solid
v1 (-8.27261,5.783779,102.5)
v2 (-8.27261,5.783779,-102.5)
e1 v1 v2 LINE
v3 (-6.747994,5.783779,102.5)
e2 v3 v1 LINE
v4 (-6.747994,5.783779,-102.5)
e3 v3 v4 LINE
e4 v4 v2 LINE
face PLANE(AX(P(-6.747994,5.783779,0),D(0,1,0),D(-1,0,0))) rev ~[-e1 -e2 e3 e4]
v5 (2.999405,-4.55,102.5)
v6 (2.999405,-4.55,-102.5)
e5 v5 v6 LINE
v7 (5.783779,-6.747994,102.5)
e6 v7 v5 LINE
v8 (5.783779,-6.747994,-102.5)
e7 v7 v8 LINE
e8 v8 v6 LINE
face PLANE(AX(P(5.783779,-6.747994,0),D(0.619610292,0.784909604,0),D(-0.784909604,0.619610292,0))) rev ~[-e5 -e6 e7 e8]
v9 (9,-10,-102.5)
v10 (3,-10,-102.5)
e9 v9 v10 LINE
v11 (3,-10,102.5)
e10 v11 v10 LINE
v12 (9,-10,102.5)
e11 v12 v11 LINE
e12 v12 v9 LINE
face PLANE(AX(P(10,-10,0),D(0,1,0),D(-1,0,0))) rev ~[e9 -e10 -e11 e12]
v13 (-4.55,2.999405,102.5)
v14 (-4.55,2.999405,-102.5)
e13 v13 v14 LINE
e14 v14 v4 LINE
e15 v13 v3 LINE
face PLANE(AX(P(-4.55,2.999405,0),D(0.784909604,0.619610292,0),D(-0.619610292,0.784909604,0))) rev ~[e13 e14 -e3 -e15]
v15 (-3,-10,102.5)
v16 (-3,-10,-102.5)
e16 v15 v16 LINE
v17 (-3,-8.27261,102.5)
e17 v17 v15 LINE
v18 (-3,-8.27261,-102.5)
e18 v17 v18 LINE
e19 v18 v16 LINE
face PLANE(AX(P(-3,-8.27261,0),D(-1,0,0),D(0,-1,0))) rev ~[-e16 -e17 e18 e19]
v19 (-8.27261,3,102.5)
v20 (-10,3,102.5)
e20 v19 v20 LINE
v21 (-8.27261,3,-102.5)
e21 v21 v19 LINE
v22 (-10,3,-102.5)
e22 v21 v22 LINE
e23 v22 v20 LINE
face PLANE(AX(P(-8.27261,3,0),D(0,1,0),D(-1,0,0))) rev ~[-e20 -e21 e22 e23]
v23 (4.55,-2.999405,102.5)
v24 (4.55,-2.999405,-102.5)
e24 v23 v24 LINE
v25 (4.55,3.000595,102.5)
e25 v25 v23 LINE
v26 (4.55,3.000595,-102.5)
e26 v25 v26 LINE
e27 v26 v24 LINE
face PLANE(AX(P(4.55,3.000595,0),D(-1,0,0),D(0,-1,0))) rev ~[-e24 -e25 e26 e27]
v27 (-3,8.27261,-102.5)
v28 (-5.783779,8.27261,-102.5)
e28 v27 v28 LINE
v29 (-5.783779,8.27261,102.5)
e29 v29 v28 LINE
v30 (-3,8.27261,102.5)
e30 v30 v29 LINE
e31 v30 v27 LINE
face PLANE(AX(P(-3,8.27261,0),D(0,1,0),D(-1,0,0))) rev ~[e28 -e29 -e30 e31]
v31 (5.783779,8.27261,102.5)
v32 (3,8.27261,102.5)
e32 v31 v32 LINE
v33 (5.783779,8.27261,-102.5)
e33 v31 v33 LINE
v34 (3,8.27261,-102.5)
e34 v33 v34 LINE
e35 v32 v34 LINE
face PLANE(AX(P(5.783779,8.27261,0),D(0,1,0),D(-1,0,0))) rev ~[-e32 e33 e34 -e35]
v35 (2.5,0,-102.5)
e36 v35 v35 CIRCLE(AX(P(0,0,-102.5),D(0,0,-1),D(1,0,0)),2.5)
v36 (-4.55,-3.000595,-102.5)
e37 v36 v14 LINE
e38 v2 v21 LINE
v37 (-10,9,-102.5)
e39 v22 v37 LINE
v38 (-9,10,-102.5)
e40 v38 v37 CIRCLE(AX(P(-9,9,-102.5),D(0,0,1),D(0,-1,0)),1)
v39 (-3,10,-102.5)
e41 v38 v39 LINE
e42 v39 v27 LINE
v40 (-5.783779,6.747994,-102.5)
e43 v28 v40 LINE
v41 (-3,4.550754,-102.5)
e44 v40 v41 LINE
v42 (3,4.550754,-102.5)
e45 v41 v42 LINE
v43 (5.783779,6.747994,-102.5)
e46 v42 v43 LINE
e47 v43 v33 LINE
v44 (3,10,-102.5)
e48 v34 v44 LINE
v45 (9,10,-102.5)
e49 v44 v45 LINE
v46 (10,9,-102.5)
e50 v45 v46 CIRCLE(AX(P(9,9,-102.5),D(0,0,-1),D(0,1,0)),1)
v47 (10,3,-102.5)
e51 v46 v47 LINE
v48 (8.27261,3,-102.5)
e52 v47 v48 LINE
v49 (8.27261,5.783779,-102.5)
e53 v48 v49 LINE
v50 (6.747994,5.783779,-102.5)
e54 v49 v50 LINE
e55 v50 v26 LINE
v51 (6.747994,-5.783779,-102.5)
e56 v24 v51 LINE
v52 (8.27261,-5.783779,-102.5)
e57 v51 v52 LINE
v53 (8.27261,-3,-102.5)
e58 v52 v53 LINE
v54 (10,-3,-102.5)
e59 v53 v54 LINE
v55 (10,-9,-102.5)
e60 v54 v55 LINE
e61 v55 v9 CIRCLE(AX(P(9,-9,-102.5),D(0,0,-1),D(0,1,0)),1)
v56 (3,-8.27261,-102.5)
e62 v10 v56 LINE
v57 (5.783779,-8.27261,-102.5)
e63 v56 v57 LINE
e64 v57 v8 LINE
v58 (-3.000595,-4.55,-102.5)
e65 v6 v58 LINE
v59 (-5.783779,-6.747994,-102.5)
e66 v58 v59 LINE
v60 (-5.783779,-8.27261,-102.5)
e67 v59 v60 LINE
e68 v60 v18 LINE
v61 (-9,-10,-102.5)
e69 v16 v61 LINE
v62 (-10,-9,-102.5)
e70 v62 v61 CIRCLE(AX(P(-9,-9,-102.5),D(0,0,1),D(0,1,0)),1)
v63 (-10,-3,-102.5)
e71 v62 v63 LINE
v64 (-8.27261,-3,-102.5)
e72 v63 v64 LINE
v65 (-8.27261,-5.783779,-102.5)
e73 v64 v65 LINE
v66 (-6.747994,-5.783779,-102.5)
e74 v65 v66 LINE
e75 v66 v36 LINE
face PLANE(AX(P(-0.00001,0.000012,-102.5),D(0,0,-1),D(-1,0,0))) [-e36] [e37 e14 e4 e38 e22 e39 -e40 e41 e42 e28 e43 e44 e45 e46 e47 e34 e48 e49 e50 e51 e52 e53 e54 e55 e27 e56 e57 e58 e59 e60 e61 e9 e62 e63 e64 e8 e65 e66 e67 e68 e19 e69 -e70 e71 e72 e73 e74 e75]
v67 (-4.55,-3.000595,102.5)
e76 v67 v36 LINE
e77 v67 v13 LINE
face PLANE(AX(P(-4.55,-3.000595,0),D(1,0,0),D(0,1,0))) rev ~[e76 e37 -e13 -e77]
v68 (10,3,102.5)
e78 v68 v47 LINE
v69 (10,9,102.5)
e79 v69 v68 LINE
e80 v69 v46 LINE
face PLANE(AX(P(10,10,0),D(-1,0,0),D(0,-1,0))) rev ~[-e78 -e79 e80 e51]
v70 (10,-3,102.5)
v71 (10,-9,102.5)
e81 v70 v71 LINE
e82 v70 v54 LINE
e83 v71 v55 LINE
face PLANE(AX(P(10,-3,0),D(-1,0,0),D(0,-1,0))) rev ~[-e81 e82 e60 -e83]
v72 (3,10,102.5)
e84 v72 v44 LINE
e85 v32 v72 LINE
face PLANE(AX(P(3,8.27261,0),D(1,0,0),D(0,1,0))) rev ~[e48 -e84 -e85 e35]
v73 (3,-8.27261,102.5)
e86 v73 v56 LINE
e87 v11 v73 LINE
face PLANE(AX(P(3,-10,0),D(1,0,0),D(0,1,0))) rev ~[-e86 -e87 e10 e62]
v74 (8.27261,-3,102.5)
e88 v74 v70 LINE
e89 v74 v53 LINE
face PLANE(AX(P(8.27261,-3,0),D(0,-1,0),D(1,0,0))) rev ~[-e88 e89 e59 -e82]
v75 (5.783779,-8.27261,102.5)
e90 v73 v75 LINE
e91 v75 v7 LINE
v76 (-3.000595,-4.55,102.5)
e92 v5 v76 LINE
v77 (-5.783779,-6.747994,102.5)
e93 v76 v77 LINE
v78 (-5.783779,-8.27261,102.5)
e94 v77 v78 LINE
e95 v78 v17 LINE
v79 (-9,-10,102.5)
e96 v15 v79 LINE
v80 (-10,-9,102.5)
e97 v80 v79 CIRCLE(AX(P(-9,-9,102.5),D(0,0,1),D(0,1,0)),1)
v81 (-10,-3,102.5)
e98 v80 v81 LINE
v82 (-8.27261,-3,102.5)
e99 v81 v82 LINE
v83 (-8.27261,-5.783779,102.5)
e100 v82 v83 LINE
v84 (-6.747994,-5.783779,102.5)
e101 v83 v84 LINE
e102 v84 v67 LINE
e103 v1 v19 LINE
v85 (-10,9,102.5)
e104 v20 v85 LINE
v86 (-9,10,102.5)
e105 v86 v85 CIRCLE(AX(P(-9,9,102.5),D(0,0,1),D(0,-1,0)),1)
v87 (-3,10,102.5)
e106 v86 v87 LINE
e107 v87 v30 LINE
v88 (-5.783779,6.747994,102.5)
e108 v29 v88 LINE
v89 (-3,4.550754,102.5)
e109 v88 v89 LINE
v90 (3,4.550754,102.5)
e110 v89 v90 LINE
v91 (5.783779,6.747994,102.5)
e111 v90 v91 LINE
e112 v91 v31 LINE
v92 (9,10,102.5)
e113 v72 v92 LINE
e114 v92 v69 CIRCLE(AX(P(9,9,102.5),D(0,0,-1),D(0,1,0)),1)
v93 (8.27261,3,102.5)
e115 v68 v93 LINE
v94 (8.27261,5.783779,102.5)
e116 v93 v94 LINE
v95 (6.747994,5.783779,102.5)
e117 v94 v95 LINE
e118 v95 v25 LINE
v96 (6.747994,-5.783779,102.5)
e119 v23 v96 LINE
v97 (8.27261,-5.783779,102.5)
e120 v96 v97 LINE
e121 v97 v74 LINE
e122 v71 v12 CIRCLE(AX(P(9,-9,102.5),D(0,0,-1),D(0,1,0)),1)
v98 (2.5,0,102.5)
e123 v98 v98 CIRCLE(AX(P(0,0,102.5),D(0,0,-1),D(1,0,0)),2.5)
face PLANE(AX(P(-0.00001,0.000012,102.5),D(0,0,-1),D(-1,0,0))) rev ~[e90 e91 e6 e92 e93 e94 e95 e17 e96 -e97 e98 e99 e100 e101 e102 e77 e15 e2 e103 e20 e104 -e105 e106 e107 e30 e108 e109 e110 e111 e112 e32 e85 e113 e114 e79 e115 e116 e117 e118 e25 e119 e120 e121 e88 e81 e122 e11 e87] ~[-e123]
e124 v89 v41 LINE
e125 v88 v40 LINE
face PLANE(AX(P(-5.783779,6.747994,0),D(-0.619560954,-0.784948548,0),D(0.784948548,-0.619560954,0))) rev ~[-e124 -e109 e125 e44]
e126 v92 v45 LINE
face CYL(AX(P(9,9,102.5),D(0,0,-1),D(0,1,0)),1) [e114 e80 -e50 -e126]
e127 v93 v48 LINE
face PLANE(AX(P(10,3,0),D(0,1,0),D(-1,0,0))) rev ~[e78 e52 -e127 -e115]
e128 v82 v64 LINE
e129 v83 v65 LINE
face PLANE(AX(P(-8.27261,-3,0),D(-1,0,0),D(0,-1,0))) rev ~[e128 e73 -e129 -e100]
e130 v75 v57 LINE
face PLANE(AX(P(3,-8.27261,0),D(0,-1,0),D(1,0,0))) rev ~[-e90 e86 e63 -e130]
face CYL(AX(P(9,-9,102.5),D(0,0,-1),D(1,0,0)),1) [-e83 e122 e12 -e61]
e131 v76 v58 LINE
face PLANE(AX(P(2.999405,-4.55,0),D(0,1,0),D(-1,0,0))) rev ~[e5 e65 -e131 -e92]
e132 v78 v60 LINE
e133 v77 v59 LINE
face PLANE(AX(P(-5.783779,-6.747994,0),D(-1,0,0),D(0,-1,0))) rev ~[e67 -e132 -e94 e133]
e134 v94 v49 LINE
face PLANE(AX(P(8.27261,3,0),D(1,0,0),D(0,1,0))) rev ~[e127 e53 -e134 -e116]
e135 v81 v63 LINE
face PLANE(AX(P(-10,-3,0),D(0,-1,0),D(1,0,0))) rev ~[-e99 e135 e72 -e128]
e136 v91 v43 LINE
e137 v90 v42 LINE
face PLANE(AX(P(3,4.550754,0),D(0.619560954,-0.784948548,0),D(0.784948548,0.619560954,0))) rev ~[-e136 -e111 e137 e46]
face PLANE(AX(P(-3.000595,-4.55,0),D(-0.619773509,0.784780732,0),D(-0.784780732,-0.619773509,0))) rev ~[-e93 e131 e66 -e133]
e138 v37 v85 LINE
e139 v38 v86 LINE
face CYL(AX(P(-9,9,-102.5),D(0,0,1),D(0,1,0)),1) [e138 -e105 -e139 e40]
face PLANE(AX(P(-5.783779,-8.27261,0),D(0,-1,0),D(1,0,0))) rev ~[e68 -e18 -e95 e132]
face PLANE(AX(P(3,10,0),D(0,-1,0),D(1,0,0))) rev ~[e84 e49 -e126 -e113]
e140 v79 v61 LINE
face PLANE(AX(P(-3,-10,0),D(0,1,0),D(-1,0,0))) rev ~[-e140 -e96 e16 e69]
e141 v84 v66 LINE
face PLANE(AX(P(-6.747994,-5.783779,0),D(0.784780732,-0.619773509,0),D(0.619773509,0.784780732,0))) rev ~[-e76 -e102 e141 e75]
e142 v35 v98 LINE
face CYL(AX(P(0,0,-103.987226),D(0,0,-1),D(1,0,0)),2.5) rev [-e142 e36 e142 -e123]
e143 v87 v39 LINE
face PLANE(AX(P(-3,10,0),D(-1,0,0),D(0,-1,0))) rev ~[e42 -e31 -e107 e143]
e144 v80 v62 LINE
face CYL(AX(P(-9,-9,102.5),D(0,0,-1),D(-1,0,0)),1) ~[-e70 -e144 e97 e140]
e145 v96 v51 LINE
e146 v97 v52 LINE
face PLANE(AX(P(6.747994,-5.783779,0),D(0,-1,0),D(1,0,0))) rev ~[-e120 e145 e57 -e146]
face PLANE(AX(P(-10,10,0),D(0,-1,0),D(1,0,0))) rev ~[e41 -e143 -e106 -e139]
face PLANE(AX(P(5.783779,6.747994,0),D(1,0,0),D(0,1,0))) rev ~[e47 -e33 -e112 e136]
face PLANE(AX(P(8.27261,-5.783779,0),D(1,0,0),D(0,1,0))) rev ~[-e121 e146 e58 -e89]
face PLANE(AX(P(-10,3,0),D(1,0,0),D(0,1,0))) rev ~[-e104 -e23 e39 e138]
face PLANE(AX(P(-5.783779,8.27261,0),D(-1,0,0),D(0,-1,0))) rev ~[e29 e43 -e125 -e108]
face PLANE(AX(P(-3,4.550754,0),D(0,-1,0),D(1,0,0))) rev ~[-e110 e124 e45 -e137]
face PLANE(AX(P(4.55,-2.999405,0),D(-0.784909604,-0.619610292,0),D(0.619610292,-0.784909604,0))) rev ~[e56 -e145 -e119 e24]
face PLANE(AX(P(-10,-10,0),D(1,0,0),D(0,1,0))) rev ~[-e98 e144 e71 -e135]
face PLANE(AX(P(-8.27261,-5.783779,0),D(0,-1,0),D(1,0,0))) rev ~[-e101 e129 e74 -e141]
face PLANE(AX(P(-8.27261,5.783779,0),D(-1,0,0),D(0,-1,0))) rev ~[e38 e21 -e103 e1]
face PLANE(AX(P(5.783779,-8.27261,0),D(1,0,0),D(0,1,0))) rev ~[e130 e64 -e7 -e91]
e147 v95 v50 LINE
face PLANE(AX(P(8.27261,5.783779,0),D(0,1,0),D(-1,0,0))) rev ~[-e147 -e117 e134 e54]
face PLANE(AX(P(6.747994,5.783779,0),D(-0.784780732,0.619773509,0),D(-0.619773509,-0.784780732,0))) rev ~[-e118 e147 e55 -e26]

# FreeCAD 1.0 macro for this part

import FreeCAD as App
import Part
import Sketcher

V = App.Vector


def edges_at(feature, points):
    """Names of the edges that pass closest to the given points."""
    edges = feature.Shape.Edges
    near = lambda p: min(range(len(edges)), key=lambda i: edges[i].distToShape(Part.Vertex(*p))[0])
    return sorted({f"Edge{near(p) + 1}" for p in points})

doc = App.newDocument("Part")
body = doc.addObject("PartDesign::Body", "Body")

# Sketch on XY plane
sketch1 = body.newObject("Sketcher::SketchObject", "Sketch")
sketch1.AttachmentSupport = (doc.getObject("XY_Plane"), [""])
sketch1.MapMode = "FlatFace"
sketch1.addGeometry([
    Part.LineSegment(V(-3, 10, 0), V(-10, 10, 0)),  # 0
    Part.LineSegment(V(-10, 10, 0), V(-10, 3, 0)),  # 1
    Part.LineSegment(V(-10, 3, 0), V(-8.3, 3, 0)),  # 2
    Part.LineSegment(V(-8.3, 3, 0), V(-8.3, 5.8, 0)),  # 3
    Part.LineSegment(V(-8.3, 5.8, 0), V(-6.7, 5.8, 0)),  # 4
    Part.LineSegment(V(-6.7, 5.8, 0), V(-4.5, 3, 0)),  # 5
    Part.LineSegment(V(-4.5, 3, 0), V(-4.5, -3, 0)),  # 6
    Part.LineSegment(V(-4.5, -3, 0), V(-6.7, -5.8, 0)),  # 7
    Part.LineSegment(V(-6.7, -5.8, 0), V(-8.3, -5.8, 0)),  # 8
    Part.LineSegment(V(-8.3, -5.8, 0), V(-8.3, -3, 0)),  # 9
    Part.LineSegment(V(-8.3, -3, 0), V(-10, -3, 0)),  # 10
    Part.LineSegment(V(-10, -3, 0), V(-10, -10, 0)),  # 11
    Part.LineSegment(V(-10, -10, 0), V(-3, -10, 0)),  # 12
    Part.LineSegment(V(-3, -10, 0), V(-3, -8.3, 0)),  # 13
    Part.LineSegment(V(-3, -8.3, 0), V(-5.8, -8.3, 0)),  # 14
    Part.LineSegment(V(-5.8, -8.3, 0), V(-5.8, -6.7, 0)),  # 15
    Part.LineSegment(V(-5.8, -6.7, 0), V(-3, -4.5, 0)),  # 16
    Part.LineSegment(V(-3, -4.5, 0), V(3, -4.5, 0)),  # 17
    Part.LineSegment(V(3, -4.5, 0), V(5.8, -6.7, 0)),  # 18
    Part.LineSegment(V(5.8, -6.7, 0), V(5.8, -8.3, 0)),  # 19
    Part.LineSegment(V(5.8, -8.3, 0), V(3, -8.3, 0)),  # 20
    Part.LineSegment(V(3, -8.3, 0), V(3, -10, 0)),  # 21
    Part.LineSegment(V(3, -10, 0), V(10, -10, 0)),  # 22
    Part.LineSegment(V(10, -10, 0), V(10, -3, 0)),  # 23
    Part.LineSegment(V(10, -3, 0), V(8.3, -3, 0)),  # 24
    Part.LineSegment(V(8.3, -3, 0), V(8.3, -5.8, 0)),  # 25
    Part.LineSegment(V(8.3, -5.8, 0), V(6.7, -5.8, 0)),  # 26
    Part.LineSegment(V(6.7, -5.8, 0), V(4.5, -3, 0)),  # 27
    Part.LineSegment(V(4.5, -3, 0), V(4.5, 3, 0)),  # 28
    Part.LineSegment(V(4.5, 3, 0), V(6.7, 5.8, 0)),  # 29
    Part.LineSegment(V(6.7, 5.8, 0), V(8.3, 5.8, 0)),  # 30
    Part.LineSegment(V(8.3, 5.8, 0), V(8.3, 3, 0)),  # 31
    Part.LineSegment(V(8.3, 3, 0), V(10, 3, 0)),  # 32
    Part.LineSegment(V(10, 3, 0), V(10, 10, 0)),  # 33
    Part.LineSegment(V(10, 10, 0), V(3, 10, 0)),  # 34
    Part.LineSegment(V(3, 10, 0), V(3, 8.3, 0)),  # 35
    Part.LineSegment(V(3, 8.3, 0), V(5.8, 8.3, 0)),  # 36
    Part.LineSegment(V(5.8, 8.3, 0), V(5.8, 6.7, 0)),  # 37
    Part.LineSegment(V(5.8, 6.7, 0), V(3, 4.6, 0)),  # 38
    Part.LineSegment(V(3, 4.6, 0), V(-3, 4.6, 0)),  # 39
    Part.LineSegment(V(-3, 4.6, 0), V(-5.8, 6.7, 0)),  # 40
    Part.LineSegment(V(-5.8, 6.7, 0), V(-5.8, 8.3, 0)),  # 41
    Part.LineSegment(V(-5.8, 8.3, 0), V(-3, 8.3, 0)),  # 42
    Part.LineSegment(V(-3, 8.3, 0), V(-3, 10, 0)),  # 43
], False)
sketch1.addConstraint([
    Sketcher.Constraint("Coincident", 0, 2, 1, 1),
    Sketcher.Constraint("Coincident", 1, 2, 2, 1),
    Sketcher.Constraint("Coincident", 2, 2, 3, 1),
    Sketcher.Constraint("Coincident", 3, 2, 4, 1),
    Sketcher.Constraint("Coincident", 4, 2, 5, 1),
    Sketcher.Constraint("Coincident", 5, 2, 6, 1),
    Sketcher.Constraint("Coincident", 6, 2, 7, 1),
    Sketcher.Constraint("Coincident", 7, 2, 8, 1),
    Sketcher.Constraint("Coincident", 8, 2, 9, 1),
    Sketcher.Constraint("Coincident", 9, 2, 10, 1),
    Sketcher.Constraint("Coincident", 10, 2, 11, 1),
    Sketcher.Constraint("Coincident", 11, 2, 12, 1),
    Sketcher.Constraint("Coincident", 12, 2, 13, 1),
    Sketcher.Constraint("Coincident", 13, 2, 14, 1),
    Sketcher.Constraint("Coincident", 14, 2, 15, 1),
    Sketcher.Constraint("Coincident", 15, 2, 16, 1),
    Sketcher.Constraint("Coincident", 16, 2, 17, 1),
    Sketcher.Constraint("Coincident", 17, 2, 18, 1),
    Sketcher.Constraint("Coincident", 18, 2, 19, 1),
    Sketcher.Constraint("Coincident", 19, 2, 20, 1),
    Sketcher.Constraint("Coincident", 20, 2, 21, 1),
    Sketcher.Constraint("Coincident", 21, 2, 22, 1),
    Sketcher.Constraint("Coincident", 22, 2, 23, 1),
    Sketcher.Constraint("Coincident", 23, 2, 24, 1),
    Sketcher.Constraint("Coincident", 24, 2, 25, 1),
    Sketcher.Constraint("Coincident", 25, 2, 26, 1),
    Sketcher.Constraint("Coincident", 26, 2, 27, 1),
    Sketcher.Constraint("Coincident", 27, 2, 28, 1),
    Sketcher.Constraint("Coincident", 28, 2, 29, 1),
    Sketcher.Constraint("Coincident", 29, 2, 30, 1),
    Sketcher.Constraint("Coincident", 30, 2, 31, 1),
    Sketcher.Constraint("Coincident", 31, 2, 32, 1),
    Sketcher.Constraint("Coincident", 32, 2, 33, 1),
    Sketcher.Constraint("Coincident", 33, 2, 34, 1),
    Sketcher.Constraint("Coincident", 34, 2, 35, 1),
    Sketcher.Constraint("Coincident", 35, 2, 36, 1),
    Sketcher.Constraint("Coincident", 36, 2, 37, 1),
    Sketcher.Constraint("Coincident", 37, 2, 38, 1),
    Sketcher.Constraint("Coincident", 38, 2, 39, 1),
    Sketcher.Constraint("Coincident", 39, 2, 40, 1),
    Sketcher.Constraint("Coincident", 40, 2, 41, 1),
    Sketcher.Constraint("Coincident", 41, 2, 42, 1),
    Sketcher.Constraint("Coincident", 42, 2, 43, 1),
    Sketcher.Constraint("Coincident", 43, 2, 0, 1),
    Sketcher.Constraint("Horizontal", 0),
    Sketcher.Constraint("Vertical", 1),
    Sketcher.Constraint("Horizontal", 2),
    Sketcher.Constraint("Vertical", 3),
    Sketcher.Constraint("Horizontal", 4),
    Sketcher.Constraint("Vertical", 6),
    Sketcher.Constraint("Horizontal", 8),
    Sketcher.Constraint("Vertical", 9),
    Sketcher.Constraint("Horizontal", 10),
    Sketcher.Constraint("Vertical", 11),
    Sketcher.Constraint("Horizontal", 12),
    Sketcher.Constraint("Vertical", 13),
    Sketcher.Constraint("Horizontal", 14),
    Sketcher.Constraint("Vertical", 15),
    Sketcher.Constraint("Horizontal", 17),
    Sketcher.Constraint("Vertical", 19),
    Sketcher.Constraint("Horizontal", 20),
    Sketcher.Constraint("Vertical", 21),
    Sketcher.Constraint("Horizontal", 22),
    Sketcher.Constraint("Vertical", 23),
    Sketcher.Constraint("Horizontal", 24),
    Sketcher.Constraint("Vertical", 25),
    Sketcher.Constraint("Horizontal", 26),
    Sketcher.Constraint("Vertical", 28),
    Sketcher.Constraint("Horizontal", 30),
    Sketcher.Constraint("Vertical", 31),
    Sketcher.Constraint("Horizontal", 32),
    Sketcher.Constraint("Vertical", 33),
    Sketcher.Constraint("Horizontal", 34),
    Sketcher.Constraint("Vertical", 35),
    Sketcher.Constraint("Horizontal", 36),
    Sketcher.Constraint("Vertical", 37),
    Sketcher.Constraint("Horizontal", 39),
    Sketcher.Constraint("Vertical", 41),
    Sketcher.Constraint("Horizontal", 42),
    Sketcher.Constraint("Vertical", 43),
    Sketcher.Constraint("Symmetric", 0, 2, 22, 2, -1, 1),
    Sketcher.Constraint("Symmetric", 2, 2, 24, 2, -1, 1),
    Sketcher.Constraint("Symmetric", 4, 2, 26, 2, -1, 1),
    Sketcher.Constraint("Symmetric", 5, 2, 27, 2, -1, 1),
    Sketcher.Constraint("Symmetric", 7, 2, 29, 2, -1, 1),
    Sketcher.Constraint("Symmetric", 9, 2, 31, 2, -1, 1),
    Sketcher.Constraint("Symmetric", 11, 2, 33, 2, -1, 1),
    Sketcher.Constraint("Symmetric", 13, 2, 35, 2, -1, 1),
    Sketcher.Constraint("Symmetric", 15, 2, 37, 2, -1, 1),
    Sketcher.Constraint("Symmetric", 18, 2, 40, 2, -1, 1),
    Sketcher.Constraint("Symmetric", 20, 2, 42, 2, -1, 1),
    Sketcher.Constraint("Symmetric", 15, 2, 18, 2, -2),
    Sketcher.Constraint("Symmetric", 13, 2, 20, 2, -2),
    Sketcher.Constraint("Symmetric", 11, 2, 22, 2, -2),
    Sketcher.Constraint("Symmetric", 9, 2, 24, 2, -2),
    Sketcher.Constraint("Symmetric", 7, 2, 26, 2, -2),
    Sketcher.Constraint("Parallel", 7, 29),
    Sketcher.Constraint("Vertical", 35, 2, 38, 2),
    Sketcher.Constraint("Vertical", 13, 2, 39, 2),
    Sketcher.Constraint("Equal", 17, 39),
    Sketcher.Constraint("Equal", 34, 1),
    Sketcher.Constraint("Equal", 42, 3),
    Sketcher.Constraint("Equal", 39, 6),
    Sketcher.Constraint("Equal", 32, 13),
    Sketcher.Constraint("Equal", 30, 15),
    Sketcher.Constraint("Equal", 7, 16),
    Sketcher.Constraint("Equal", 5, 18),
    Sketcher.Constraint("Equal", 29, 38),
    Sketcher.Constraint("DistanceX", 0, 2, 0, 1, 7.0),
    Sketcher.Constraint("DistanceX", 17, 1, 17, 2, 6.0),
    Sketcher.Constraint("DistanceY", -1, 1, 0, 2, 10.0),
    Sketcher.Constraint("DistanceX", 5, 2, -1, 1, 4.55),
    Sketcher.Constraint("DistanceX", 2, 1, 2, 2, 1.72739),
    Sketcher.Constraint("DistanceX", 14, 2, 14, 1, 2.783779),
    Sketcher.Constraint("DistanceY", 15, 2, 6, 2, 3.747399),
    Sketcher.Constraint("Distance", 5, 3.547382),
])
pad1 = body.newObject("PartDesign::Pad", "Pad")
pad1.Profile = sketch1
pad1.Length = 205
pad1.Midplane = True

# Sketch on XY plane
sketch2 = body.newObject("Sketcher::SketchObject", "Sketch001")
sketch2.AttachmentSupport = (doc.getObject("XY_Plane"), [""])
sketch2.MapMode = "FlatFace"
sketch2.AttachmentOffset = App.Placement(V(0, 0, 102.5), App.Rotation())
sketch2.addGeometry(Part.Circle(V(0, 0, 0), V(0, 0, 1), 2.5), False)
sketch2.addConstraint([
    Sketcher.Constraint("Coincident", 0, 3, -1, 1),
    Sketcher.Constraint("Diameter", 0, 5.0),
])
pocket1 = body.newObject("PartDesign::Pocket", "Pocket")
pocket1.Profile = sketch2
pocket1.Type = "ThroughAll"
pocket1.Midplane = True
doc.recompute()

fillet = body.newObject("PartDesign::Fillet", "Fillet")
fillet.Base = (pocket1, edges_at(pocket1, [
    (-10, 10, 0),
    (10, 10, 0),
    (10, -10, 0),
    (-10, -10, 0),
]))
fillet.Radius = 1

doc.recompute()
